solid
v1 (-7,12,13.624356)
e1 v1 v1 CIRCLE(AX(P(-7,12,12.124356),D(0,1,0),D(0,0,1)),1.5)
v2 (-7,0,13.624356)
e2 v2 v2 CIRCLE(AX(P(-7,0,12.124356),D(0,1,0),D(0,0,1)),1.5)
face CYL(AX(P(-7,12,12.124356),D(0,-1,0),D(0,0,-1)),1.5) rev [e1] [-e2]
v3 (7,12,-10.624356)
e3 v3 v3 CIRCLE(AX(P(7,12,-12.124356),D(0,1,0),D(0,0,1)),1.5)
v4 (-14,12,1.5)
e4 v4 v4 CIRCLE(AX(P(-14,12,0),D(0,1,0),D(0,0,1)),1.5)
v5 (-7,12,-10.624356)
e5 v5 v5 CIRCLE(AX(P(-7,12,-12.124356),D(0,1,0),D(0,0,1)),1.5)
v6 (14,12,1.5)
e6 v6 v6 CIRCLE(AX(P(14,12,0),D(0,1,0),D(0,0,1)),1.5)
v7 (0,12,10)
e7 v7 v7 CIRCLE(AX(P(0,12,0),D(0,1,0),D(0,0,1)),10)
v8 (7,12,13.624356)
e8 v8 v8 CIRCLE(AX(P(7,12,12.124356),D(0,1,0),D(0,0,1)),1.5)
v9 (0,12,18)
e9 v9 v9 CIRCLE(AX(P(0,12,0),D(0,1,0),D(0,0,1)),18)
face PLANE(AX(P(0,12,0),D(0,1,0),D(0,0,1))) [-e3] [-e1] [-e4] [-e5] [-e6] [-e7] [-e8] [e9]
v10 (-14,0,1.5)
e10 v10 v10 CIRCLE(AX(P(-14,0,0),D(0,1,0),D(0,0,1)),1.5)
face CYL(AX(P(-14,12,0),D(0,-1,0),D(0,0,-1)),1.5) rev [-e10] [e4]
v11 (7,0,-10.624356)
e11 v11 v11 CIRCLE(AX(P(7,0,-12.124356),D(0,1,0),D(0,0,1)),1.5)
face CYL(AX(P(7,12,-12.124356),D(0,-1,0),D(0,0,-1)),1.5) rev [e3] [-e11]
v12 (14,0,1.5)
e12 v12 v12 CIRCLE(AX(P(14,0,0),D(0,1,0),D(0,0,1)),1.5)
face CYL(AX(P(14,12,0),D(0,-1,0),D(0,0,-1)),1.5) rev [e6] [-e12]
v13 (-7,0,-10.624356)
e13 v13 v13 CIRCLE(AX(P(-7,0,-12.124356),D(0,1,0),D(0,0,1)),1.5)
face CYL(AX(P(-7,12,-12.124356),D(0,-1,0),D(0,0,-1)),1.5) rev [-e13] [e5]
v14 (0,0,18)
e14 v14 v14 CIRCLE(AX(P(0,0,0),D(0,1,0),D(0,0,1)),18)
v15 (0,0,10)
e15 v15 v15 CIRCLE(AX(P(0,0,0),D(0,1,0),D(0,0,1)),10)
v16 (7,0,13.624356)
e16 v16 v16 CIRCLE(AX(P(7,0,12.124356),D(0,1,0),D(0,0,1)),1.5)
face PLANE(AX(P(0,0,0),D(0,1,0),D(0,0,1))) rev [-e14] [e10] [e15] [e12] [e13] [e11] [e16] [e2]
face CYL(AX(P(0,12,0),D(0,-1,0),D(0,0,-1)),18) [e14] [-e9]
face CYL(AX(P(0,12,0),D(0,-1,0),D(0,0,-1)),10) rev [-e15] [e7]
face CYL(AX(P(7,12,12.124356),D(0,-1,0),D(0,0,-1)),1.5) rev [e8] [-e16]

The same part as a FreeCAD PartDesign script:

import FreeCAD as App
import Part
import Sketcher
from FreeCAD import Vector

doc = App.newDocument("Part")
body = doc.addObject("PartDesign::Body", "Body")

# Sketch on XZ plane
sketch1 = body.newObject("Sketcher::SketchObject", "Sketch")
sketch1.AttachmentSupport = (doc.getObject("XZ_Plane"), [""])
sketch1.MapMode = "FlatFace"
sketch1.addGeometry(Part.Circle(Vector(0, 0, 0), Vector(0, 0, 1), 18), False)
sketch1.addGeometry(Part.Circle(Vector(-7, -12.1, 0), Vector(0, 0, 1), 1.5), False)
sketch1.addGeometry(Part.Circle(Vector(-14, 0, 0), Vector(0, 0, 1), 1.5), False)
sketch1.addGeometry(Part.Circle(Vector(-7, 12.1, 0), Vector(0, 0, 1), 1.5), False)
sketch1.addGeometry(Part.Circle(Vector(7, -12.1, 0), Vector(0, 0, 1), 1.5), False)
sketch1.addGeometry(Part.Circle(Vector(14, 0, 0), Vector(0, 0, 1), 1.5), False)
sketch1.addGeometry(Part.Circle(Vector(0, 0, 0), Vector(0, 0, 1), 10), False)
sketch1.addGeometry(Part.Circle(Vector(7, 12.1, 0), Vector(0, 0, 1), 1.5), False)
sketch1.addConstraint(Sketcher.Constraint("Coincident", 0, 3, -1, 1))
sketch1.addConstraint(Sketcher.Constraint("Coincident", 6, 3, -1, 1))
sketch1.addConstraint(Sketcher.Constraint("Equal", 1, 2))
sketch1.addConstraint(Sketcher.Constraint("Equal", 2, 3))
sketch1.addConstraint(Sketcher.Constraint("Equal", 3, 4))
sketch1.addConstraint(Sketcher.Constraint("Equal", 4, 5))
sketch1.addConstraint(Sketcher.Constraint("Equal", 5, 7))
sketch1.addConstraint(Sketcher.Constraint("Symmetric", 3, 3, 4, 3, -1, 1))
sketch1.addConstraint(Sketcher.Constraint("Symmetric", 2, 3, 5, 3, -1, 1))
sketch1.addConstraint(Sketcher.Constraint("Symmetric", 1, 3, 7, 3, -1, 1))
sketch1.addConstraint(Sketcher.Constraint("Symmetric", 1, 3, 4, 3, -2))
sketch1.addConstraint(Sketcher.Constraint("PointOnObject", 2, 3, -1))
sketch1.addConstraint(Sketcher.Constraint("Diameter", 0, 36.0))
sketch1.addConstraint(Sketcher.Constraint("Diameter", 1, 3.0))
sketch1.addConstraint(Sketcher.Constraint("Diameter", 6, 20.0))
sketch1.addConstraint(Sketcher.Constraint("DistanceX", 1, 3, -1, 1, 7.0))
sketch1.addConstraint(Sketcher.Constraint("DistanceX", 2, 3, -1, 1, 14.0))
sketch1.addConstraint(Sketcher.Constraint("DistanceY", 1, 3, 3, 3, 24.248711))
pad1 = body.newObject("PartDesign::Pad", "Pad")
pad1.Profile = sketch1
pad1.Length = 12
pad1.Reversed = True

doc.recompute()
